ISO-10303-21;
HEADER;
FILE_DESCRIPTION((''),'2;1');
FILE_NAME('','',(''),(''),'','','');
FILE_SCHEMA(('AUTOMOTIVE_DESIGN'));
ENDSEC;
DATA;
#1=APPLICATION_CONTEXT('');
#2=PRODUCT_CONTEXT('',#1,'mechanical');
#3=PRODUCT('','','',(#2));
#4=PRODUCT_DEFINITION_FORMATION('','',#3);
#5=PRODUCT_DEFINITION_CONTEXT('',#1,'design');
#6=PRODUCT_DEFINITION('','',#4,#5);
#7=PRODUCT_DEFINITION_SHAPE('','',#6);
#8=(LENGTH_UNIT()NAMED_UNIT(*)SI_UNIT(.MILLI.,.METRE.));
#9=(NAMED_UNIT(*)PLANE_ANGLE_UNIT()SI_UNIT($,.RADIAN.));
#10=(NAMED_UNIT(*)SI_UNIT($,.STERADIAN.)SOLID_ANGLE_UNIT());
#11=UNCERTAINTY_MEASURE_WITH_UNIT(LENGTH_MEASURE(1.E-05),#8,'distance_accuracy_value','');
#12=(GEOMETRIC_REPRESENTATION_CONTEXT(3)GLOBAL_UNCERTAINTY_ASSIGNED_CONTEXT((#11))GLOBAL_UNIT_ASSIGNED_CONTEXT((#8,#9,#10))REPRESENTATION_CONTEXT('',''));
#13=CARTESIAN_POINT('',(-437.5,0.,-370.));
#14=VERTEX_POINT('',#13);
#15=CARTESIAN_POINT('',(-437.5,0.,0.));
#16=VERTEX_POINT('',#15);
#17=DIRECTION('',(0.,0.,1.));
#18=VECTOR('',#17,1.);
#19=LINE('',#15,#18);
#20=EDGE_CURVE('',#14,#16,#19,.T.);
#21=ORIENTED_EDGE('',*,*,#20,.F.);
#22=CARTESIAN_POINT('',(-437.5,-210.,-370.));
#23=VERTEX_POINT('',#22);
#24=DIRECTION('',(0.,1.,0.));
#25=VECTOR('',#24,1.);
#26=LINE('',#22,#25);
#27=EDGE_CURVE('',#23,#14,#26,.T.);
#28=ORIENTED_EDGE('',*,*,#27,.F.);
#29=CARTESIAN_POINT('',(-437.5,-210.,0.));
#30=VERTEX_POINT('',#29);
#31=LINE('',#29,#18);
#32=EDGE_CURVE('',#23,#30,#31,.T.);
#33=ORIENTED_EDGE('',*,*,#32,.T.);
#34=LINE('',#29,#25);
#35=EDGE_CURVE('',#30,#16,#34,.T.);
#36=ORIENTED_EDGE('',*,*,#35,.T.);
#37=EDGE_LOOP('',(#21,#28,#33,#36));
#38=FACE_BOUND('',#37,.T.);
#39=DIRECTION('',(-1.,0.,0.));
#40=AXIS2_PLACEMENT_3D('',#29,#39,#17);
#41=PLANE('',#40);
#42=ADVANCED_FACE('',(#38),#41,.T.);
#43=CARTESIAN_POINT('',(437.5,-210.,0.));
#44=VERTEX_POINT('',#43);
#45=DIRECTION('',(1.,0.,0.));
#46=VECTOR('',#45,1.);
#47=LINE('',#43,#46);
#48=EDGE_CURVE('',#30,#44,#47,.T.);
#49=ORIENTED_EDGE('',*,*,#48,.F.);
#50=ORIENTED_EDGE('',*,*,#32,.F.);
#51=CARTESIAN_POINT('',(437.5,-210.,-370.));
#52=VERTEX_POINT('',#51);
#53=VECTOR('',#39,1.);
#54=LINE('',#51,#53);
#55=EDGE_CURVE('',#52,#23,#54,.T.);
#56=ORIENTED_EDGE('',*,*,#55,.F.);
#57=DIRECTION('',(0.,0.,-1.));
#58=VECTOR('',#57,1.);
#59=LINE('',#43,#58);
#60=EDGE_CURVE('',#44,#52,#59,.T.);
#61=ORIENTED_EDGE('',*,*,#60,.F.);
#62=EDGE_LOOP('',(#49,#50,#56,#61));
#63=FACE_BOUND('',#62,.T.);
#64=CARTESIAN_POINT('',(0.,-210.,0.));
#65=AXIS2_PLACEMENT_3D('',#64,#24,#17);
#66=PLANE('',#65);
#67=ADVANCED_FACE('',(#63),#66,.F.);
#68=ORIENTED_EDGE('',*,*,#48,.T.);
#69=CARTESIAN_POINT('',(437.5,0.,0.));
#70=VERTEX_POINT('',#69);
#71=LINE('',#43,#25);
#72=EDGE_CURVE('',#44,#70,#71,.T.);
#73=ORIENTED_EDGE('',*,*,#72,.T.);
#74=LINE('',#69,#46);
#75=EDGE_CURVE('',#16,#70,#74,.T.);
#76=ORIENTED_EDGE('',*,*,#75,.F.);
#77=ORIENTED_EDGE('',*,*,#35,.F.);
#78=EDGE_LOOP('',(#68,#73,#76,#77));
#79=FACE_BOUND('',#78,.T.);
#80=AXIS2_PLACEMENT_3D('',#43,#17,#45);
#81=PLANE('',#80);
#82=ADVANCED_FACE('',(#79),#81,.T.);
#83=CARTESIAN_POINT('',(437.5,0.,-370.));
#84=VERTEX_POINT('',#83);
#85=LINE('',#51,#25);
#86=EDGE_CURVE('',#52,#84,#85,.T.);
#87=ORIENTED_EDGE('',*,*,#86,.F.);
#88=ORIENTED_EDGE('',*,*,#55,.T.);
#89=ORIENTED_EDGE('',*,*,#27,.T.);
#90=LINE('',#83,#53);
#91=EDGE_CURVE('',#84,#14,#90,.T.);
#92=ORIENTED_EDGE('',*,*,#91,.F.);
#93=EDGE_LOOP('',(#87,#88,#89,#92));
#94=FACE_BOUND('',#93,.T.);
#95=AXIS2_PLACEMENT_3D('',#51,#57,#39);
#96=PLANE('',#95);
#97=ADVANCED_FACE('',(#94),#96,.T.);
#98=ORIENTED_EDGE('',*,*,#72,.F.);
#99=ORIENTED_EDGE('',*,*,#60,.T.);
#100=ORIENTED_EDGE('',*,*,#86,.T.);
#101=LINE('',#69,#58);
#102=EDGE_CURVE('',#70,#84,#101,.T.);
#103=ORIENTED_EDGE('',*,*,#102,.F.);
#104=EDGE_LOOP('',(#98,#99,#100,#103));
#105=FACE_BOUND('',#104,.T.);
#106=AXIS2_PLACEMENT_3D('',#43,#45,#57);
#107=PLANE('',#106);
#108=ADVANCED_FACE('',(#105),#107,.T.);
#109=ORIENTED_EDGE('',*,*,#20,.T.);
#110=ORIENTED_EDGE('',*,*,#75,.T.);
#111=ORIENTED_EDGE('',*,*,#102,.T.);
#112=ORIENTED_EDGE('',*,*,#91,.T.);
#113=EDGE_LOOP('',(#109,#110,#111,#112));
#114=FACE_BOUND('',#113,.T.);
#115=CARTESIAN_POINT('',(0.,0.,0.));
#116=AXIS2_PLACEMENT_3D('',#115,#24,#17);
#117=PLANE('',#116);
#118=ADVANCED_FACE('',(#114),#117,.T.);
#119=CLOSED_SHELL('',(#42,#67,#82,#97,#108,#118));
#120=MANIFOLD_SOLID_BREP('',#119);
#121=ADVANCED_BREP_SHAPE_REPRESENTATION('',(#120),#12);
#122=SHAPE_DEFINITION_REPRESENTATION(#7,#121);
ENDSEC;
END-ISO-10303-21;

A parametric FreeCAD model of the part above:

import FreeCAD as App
import Part
import Sketcher
Q = App.Units.Quantity


def add_polygon(sketch, points):
    """Adds a closed chain of lines whose ends are joined by coincident constraints."""
    first, n = sketch.GeometryCount, len(points)
    for a, b in zip(points, points[1:] + points[:1]):
        sketch.addGeometry(Part.LineSegment(App.Vector(*a, 0), App.Vector(*b, 0)), False)
    for i in range(n):
        sketch.addConstraint(Sketcher.Constraint("Coincident", first + i, 2, first + (i + 1) % n, 1))

doc = App.newDocument("Part")
body = doc.addObject("PartDesign::Body", "Body")

sketch1 = body.newObject("Sketcher::SketchObject", "Sketch")
sketch1.AttachmentSupport = (doc.getObject("XZ_Plane"), [""])
sketch1.MapMode = "FlatFace"
add_polygon(sketch1, [(-438, -370), (-438, 0), (438, 0), (438, -370)])
sketch1.addConstraint([
    Sketcher.Constraint("Vertical", 0),
    Sketcher.Constraint("Horizontal", 1),
    Sketcher.Constraint("Vertical", 2),
    Sketcher.Constraint("Horizontal", 3),
    Sketcher.Constraint("Symmetric", 0, 2, 1, 2, -1, 1),
    Sketcher.Constraint("DistanceX", 1, 1, 1, 2, Q("875 mm")),
    Sketcher.Constraint("DistanceY", 0, 1, 0, 2, Q("370 mm")),
])
pad1 = body.newObject("PartDesign::Pad", "Pad")
pad1.Profile = sketch1
pad1.Length = 210

doc.recompute()
